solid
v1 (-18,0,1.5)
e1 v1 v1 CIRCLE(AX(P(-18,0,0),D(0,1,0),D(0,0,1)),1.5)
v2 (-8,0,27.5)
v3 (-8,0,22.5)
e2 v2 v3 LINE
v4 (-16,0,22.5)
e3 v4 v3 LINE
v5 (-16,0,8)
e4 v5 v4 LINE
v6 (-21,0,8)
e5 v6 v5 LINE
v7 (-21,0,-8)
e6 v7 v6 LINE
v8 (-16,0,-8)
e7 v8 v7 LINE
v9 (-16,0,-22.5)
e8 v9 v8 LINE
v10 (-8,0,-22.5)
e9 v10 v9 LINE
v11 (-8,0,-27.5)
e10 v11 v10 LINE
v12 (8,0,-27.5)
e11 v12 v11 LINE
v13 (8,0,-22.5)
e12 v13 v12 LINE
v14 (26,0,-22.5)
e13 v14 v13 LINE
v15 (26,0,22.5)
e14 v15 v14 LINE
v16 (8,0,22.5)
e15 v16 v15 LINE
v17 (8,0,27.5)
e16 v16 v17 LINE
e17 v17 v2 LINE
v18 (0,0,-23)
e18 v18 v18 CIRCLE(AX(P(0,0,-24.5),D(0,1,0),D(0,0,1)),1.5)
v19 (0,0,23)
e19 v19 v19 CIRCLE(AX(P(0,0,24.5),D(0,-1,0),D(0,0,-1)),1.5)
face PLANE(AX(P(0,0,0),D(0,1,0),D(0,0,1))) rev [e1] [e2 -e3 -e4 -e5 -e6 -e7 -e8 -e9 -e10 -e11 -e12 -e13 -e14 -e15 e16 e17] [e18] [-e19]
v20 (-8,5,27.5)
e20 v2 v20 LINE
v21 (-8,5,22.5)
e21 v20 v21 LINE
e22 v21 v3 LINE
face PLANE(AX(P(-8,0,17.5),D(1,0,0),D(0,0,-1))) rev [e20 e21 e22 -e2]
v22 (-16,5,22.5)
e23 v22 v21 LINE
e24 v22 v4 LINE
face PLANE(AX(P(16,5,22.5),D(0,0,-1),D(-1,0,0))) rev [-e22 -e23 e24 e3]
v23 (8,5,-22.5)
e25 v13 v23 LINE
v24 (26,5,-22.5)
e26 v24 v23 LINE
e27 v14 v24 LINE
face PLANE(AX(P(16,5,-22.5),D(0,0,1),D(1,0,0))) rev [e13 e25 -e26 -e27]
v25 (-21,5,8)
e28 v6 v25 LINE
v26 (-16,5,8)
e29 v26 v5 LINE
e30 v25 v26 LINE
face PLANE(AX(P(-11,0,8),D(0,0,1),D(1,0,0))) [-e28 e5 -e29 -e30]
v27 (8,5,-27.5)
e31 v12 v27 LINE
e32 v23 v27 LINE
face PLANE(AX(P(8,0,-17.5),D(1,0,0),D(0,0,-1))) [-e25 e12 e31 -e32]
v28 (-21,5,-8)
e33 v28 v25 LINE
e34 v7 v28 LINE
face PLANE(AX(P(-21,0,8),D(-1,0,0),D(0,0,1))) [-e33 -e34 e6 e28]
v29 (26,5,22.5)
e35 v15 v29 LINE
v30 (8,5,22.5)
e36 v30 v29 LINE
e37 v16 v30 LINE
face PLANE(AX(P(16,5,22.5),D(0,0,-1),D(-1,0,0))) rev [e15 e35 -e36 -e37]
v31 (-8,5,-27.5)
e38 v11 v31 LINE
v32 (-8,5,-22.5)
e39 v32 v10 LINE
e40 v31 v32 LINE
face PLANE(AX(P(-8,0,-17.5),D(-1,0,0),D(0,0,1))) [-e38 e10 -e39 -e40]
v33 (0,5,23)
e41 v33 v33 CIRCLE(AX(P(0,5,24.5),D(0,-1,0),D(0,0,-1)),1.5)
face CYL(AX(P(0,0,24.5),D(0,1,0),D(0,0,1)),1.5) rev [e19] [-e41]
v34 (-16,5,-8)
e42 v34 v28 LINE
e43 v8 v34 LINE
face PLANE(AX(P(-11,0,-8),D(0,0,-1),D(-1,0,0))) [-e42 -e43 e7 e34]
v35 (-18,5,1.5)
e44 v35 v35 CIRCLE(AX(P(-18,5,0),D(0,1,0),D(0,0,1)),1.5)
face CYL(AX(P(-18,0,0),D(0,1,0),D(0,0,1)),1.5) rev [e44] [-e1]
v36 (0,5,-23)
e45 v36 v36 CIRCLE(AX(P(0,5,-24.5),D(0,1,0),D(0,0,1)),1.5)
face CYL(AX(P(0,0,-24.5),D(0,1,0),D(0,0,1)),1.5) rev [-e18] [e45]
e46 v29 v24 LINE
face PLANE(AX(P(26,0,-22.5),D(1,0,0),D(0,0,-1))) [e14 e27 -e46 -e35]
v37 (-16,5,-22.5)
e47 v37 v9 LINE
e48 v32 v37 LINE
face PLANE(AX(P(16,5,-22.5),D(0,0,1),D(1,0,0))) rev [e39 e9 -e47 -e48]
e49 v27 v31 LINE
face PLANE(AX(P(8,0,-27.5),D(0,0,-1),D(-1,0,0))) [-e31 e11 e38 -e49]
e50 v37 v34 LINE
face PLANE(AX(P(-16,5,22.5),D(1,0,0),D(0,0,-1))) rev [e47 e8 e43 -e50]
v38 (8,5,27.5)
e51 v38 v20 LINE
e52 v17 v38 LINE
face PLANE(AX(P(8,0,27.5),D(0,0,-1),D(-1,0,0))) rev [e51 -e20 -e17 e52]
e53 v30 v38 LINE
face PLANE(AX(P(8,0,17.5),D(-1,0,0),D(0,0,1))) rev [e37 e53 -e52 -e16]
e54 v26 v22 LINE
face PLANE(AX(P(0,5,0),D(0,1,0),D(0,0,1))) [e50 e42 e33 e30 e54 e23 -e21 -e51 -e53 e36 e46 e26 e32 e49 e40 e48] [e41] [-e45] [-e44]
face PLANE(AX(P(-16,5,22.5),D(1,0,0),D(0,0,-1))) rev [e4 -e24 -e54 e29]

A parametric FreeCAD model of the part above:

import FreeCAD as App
import Part
import Sketcher
Q = App.Units.Quantity

doc = App.newDocument("Part")
body = doc.addObject("PartDesign::Body", "Body")

sketch1 = body.newObject("Sketcher::SketchObject", "Sketch")
sketch1.AttachmentSupport = (doc.getObject("XZ_Plane"), [""])
sketch1.MapMode = "FlatFace"
sketch1.addGeometry([
    Part.LineSegment(App.Vector(-16, -22, 0), App.Vector(-16, 22, 0)),
    Part.LineSegment(App.Vector(-16, 22, 0), App.Vector(16, 22, 0)),
    Part.LineSegment(App.Vector(16, 22, 0), App.Vector(16, -22, 0)),
    Part.LineSegment(App.Vector(16, -22, 0), App.Vector(-16, -22, 0)),
], False)
sketch1.addConstraint([
    Sketcher.Constraint("Coincident", 0, 2, 1, 1),
    Sketcher.Constraint("Coincident", 1, 2, 2, 1),
    Sketcher.Constraint("Coincident", 2, 2, 3, 1),
    Sketcher.Constraint("Coincident", 3, 2, 0, 1),
    Sketcher.Constraint("Vertical", 0),
    Sketcher.Constraint("Horizontal", 1),
    Sketcher.Constraint("Vertical", 2),
    Sketcher.Constraint("Horizontal", 3),
    Sketcher.Constraint("Symmetric", 0, 2, 2, 2, -1, 1),
    Sketcher.Constraint("DistanceX", 1, 1, 1, 2, Q("32 mm")),
    Sketcher.Constraint("DistanceY", 0, 1, 0, 2, Q("45 mm")),
])
pad1 = body.newObject("PartDesign::Pad", "Pad")
pad1.Profile = sketch1
pad1.Length = 5
pad1.Reversed = True

sketch2 = body.newObject("Sketcher::SketchObject", "Sketch001")
sketch2.AttachmentSupport = (doc.getObject("XZ_Plane"), [""])
sketch2.MapMode = "FlatFace"
sketch2.AttachmentOffset = App.Placement(App.Vector(0, 0, -5), App.Rotation())
sketch2.addGeometry([
    Part.LineSegment(App.Vector(-8, -28, 0), App.Vector(-8, -18, 0)),
    Part.LineSegment(App.Vector(-8, -18, 0), App.Vector(8, -18, 0)),
    Part.LineSegment(App.Vector(8, -18, 0), App.Vector(8, -28, 0)),
    Part.LineSegment(App.Vector(8, -28, 0), App.Vector(-8, -28, 0)),
], False)
sketch2.addConstraint([
    Sketcher.Constraint("Coincident", 0, 2, 1, 1),
    Sketcher.Constraint("Coincident", 1, 2, 2, 1),
    Sketcher.Constraint("Coincident", 2, 2, 3, 1),
    Sketcher.Constraint("Coincident", 3, 2, 0, 1),
    Sketcher.Constraint("Vertical", 0),
    Sketcher.Constraint("Horizontal", 1),
    Sketcher.Constraint("Vertical", 2),
    Sketcher.Constraint("Horizontal", 3),
    Sketcher.Constraint("DistanceX", 1, 1, 1, 2, Q("16 mm")),
    Sketcher.Constraint("DistanceY", 0, 1, 0, 2, Q("10 mm")),
    Sketcher.Constraint("DistanceX", 0, 2, -1, 1, Q("8 mm")),
    Sketcher.Constraint("DistanceY", 0, 2, -1, 1, Q("17.5 mm")),
])
pad2 = body.newObject("PartDesign::Pad", "Pad001")
pad2.Profile = sketch2
pad2.Type = "UpToLast"

sketch3 = body.newObject("Sketcher::SketchObject", "Sketch002")
sketch3.AttachmentSupport = (doc.getObject("XZ_Plane"), [""])
sketch3.MapMode = "FlatFace"
sketch3.AttachmentOffset = App.Placement(App.Vector(0, 0, -5), App.Rotation())
sketch3.addGeometry(Part.Circle(App.Vector(0, -24.5, 0), App.Vector(0, 0, 1), 1.5), False)
sketch3.addConstraint([
    Sketcher.Constraint("PointOnObject", 0, 3, -2),
    Sketcher.Constraint("Diameter", 0, Q("3 mm")),
    Sketcher.Constraint("DistanceY", 0, 3, -1, 1, Q("24.5 mm")),
])
pocket1 = body.newObject("PartDesign::Pocket", "Pocket")
pocket1.Profile = sketch3
pocket1.Type = "ThroughAll"
pocket1.Reversed = True
doc.recompute()

mirrored = body.newObject("PartDesign::Mirrored", "Mirrored")
mirrored.Originals = [pad2, pocket1]
mirrored.MirrorPlane = (doc.getObject("XY_Plane"), [""])
body.Tip = mirrored

sketch4 = body.newObject("Sketcher::SketchObject", "Sketch003")
sketch4.AttachmentSupport = (doc.getObject("XZ_Plane"), [""])
sketch4.MapMode = "FlatFace"
sketch4.AttachmentOffset = App.Placement(App.Vector(0, 0, -5), App.Rotation())
sketch4.addGeometry([
    Part.LineSegment(App.Vector(-21, -8, 0), App.Vector(-21, 8, 0)),
    Part.LineSegment(App.Vector(-21, 8, 0), App.Vector(-11, 8, 0)),
    Part.LineSegment(App.Vector(-11, 8, 0), App.Vector(-11, -8, 0)),
    Part.LineSegment(App.Vector(-11, -8, 0), App.Vector(-21, -8, 0)),
], False)
sketch4.addConstraint([
    Sketcher.Constraint("Coincident", 0, 2, 1, 1),
    Sketcher.Constraint("Coincident", 1, 2, 2, 1),
    Sketcher.Constraint("Coincident", 2, 2, 3, 1),
    Sketcher.Constraint("Coincident", 3, 2, 0, 1),
    Sketcher.Constraint("Vertical", 0),
    Sketcher.Constraint("Horizontal", 1),
    Sketcher.Constraint("Vertical", 2),
    Sketcher.Constraint("Horizontal", 3),
    Sketcher.Constraint("DistanceX", 1, 1, 1, 2, Q("10 mm")),
    Sketcher.Constraint("DistanceY", 0, 1, 0, 2, Q("16 mm")),
    Sketcher.Constraint("DistanceX", 0, 2, -1, 1, Q("21 mm")),
    Sketcher.Constraint("DistanceY", -1, 1, 0, 2, Q("8 mm")),
])
pad3 = body.newObject("PartDesign::Pad", "Pad002")
pad3.Profile = sketch4
pad3.Type = "UpToLast"

sketch5 = body.newObject("Sketcher::SketchObject", "Sketch004")
sketch5.AttachmentSupport = (doc.getObject("XZ_Plane"), [""])
sketch5.MapMode = "FlatFace"
sketch5.AttachmentOffset = App.Placement(App.Vector(0, 0, -5), App.Rotation())
sketch5.addGeometry(Part.Circle(App.Vector(-18, 0, 0), App.Vector(0, 0, 1), 1.5), False)
sketch5.addConstraint([
    Sketcher.Constraint("PointOnObject", 0, 3, -1),
    Sketcher.Constraint("Diameter", 0, Q("3 mm")),
    Sketcher.Constraint("DistanceX", 0, 3, -1, 1, Q("18 mm")),
])
pocket2 = body.newObject("PartDesign::Pocket", "Pocket001")
pocket2.Profile = sketch5
pocket2.Type = "ThroughAll"
pocket2.Reversed = True

sketch6 = body.newObject("Sketcher::SketchObject", "Sketch005")
sketch6.AttachmentSupport = (doc.getObject("XZ_Plane"), [""])
sketch6.MapMode = "FlatFace"
sketch6.AttachmentOffset = App.Placement(App.Vector(0, 0, -5), App.Rotation())
sketch6.addGeometry([
    Part.LineSegment(App.Vector(16, -22, 0), App.Vector(16, 22, 0)),
    Part.LineSegment(App.Vector(16, 22, 0), App.Vector(26, 22, 0)),
    Part.LineSegment(App.Vector(26, 22, 0), App.Vector(26, -22, 0)),
    Part.LineSegment(App.Vector(26, -22, 0), App.Vector(16, -22, 0)),
], False)
sketch6.addConstraint([
    Sketcher.Constraint("Coincident", 0, 2, 1, 1),
    Sketcher.Constraint("Coincident", 1, 2, 2, 1),
    Sketcher.Constraint("Coincident", 2, 2, 3, 1),
    Sketcher.Constraint("Coincident", 3, 2, 0, 1),
    Sketcher.Constraint("Vertical", 0),
    Sketcher.Constraint("Horizontal", 1),
    Sketcher.Constraint("Vertical", 2),
    Sketcher.Constraint("Horizontal", 3),
    Sketcher.Constraint("DistanceX", 1, 1, 1, 2, Q("10 mm")),
    Sketcher.Constraint("DistanceY", 0, 1, 0, 2, Q("45 mm")),
    Sketcher.Constraint("DistanceX", -1, 1, 0, 2, Q("16 mm")),
    Sketcher.Constraint("DistanceY", -1, 1, 0, 2, Q("22.5 mm")),
])
pad4 = body.newObject("PartDesign::Pad", "Pad003")
pad4.Profile = sketch6
pad4.Length = 5

doc.recompute()
